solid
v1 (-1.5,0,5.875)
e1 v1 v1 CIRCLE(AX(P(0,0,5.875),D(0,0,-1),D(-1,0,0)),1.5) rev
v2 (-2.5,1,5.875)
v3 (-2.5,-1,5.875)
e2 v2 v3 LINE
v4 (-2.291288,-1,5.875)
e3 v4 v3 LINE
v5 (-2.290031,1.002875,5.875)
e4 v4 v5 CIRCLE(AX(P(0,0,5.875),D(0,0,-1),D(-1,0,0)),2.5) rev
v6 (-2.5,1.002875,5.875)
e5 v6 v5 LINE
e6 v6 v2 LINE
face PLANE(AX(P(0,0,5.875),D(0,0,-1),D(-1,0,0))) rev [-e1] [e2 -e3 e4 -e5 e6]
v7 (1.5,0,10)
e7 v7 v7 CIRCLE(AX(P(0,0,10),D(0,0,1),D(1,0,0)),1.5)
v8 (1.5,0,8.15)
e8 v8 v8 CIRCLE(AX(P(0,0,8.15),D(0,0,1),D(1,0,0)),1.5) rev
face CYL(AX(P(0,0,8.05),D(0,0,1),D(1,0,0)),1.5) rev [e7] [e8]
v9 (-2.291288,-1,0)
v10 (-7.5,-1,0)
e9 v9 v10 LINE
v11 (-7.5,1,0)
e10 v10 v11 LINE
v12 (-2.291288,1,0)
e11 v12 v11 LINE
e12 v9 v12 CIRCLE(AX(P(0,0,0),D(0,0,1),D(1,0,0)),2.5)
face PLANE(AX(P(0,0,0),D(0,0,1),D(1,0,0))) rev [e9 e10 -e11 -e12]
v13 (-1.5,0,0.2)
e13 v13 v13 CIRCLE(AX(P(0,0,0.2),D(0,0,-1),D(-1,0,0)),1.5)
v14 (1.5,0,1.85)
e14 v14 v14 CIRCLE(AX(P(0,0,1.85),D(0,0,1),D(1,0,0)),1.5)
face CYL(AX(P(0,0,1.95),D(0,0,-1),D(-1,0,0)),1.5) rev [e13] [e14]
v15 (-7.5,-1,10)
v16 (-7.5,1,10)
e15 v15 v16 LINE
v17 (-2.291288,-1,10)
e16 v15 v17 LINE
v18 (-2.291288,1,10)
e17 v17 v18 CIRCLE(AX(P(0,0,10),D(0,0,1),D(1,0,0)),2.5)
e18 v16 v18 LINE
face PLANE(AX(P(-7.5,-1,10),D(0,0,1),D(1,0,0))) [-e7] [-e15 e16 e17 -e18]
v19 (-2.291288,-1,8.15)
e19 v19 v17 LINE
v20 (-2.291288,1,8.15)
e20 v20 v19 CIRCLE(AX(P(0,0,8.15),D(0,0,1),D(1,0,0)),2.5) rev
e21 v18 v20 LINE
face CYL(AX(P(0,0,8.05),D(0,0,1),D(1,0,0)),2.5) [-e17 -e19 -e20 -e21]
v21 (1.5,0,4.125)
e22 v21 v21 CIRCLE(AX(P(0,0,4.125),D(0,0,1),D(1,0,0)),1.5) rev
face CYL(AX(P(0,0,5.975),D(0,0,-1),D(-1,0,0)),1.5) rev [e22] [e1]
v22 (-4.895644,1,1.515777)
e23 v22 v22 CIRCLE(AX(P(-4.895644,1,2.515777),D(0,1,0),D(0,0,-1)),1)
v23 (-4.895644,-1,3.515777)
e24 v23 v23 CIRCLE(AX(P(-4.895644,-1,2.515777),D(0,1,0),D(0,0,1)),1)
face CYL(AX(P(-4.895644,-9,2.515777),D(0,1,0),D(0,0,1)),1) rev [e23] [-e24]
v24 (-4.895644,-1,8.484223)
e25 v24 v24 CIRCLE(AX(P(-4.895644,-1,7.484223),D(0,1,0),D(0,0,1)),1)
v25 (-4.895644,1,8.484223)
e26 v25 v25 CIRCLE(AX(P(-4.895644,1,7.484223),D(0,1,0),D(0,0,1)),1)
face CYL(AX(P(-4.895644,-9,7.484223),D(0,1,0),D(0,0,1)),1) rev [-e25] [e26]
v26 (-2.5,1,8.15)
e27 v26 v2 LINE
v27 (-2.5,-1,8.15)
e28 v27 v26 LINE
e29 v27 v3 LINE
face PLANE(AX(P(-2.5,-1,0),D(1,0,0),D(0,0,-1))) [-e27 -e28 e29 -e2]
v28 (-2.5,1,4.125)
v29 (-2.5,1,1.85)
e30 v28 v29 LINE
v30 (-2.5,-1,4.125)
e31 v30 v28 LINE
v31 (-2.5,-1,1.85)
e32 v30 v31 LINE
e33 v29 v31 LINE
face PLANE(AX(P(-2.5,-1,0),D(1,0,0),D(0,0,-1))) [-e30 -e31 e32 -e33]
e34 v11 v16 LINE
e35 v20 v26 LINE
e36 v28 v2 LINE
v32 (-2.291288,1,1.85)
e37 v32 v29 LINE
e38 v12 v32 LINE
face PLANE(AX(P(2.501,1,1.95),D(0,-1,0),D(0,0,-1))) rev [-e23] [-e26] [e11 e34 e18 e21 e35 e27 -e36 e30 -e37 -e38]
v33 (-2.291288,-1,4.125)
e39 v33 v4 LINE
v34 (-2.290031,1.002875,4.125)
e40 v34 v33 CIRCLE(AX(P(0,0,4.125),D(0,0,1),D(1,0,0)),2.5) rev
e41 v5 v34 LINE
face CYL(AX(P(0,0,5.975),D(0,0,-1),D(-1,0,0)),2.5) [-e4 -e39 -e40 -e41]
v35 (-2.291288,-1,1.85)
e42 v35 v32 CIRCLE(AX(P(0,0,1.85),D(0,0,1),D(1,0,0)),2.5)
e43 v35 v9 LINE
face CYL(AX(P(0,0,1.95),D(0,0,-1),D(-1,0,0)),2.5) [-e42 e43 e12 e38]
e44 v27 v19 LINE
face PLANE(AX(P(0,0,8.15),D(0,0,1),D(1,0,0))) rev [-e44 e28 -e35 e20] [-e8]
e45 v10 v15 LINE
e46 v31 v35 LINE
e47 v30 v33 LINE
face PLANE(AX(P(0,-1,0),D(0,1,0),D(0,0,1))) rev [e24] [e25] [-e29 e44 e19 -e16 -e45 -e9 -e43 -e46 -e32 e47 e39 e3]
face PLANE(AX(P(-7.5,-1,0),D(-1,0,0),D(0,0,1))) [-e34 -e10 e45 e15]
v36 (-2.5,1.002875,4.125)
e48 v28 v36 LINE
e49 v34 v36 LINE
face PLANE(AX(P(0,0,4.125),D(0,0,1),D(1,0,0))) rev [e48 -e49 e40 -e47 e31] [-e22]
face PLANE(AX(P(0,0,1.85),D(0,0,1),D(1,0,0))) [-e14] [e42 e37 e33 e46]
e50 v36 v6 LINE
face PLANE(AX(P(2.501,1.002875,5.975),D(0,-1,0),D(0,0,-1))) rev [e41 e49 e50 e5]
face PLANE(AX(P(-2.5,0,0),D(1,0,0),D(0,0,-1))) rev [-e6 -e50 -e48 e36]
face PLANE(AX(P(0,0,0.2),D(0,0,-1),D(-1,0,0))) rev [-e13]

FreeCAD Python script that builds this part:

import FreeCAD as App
import Part
import Sketcher
Q = App.Units.Quantity

doc = App.newDocument("Part")
body = doc.addObject("PartDesign::Body", "Body")

sketch1 = body.newObject("Sketcher::SketchObject", "Sketch")
sketch1.AttachmentSupport = (doc.getObject("XY_Plane"), [""])
sketch1.MapMode = "FlatFace"
sketch1.addGeometry(Part.Circle(App.Vector(0, 0, 0), App.Vector(0, 0, 1), 2.5), False)
sketch1.addGeometry(Part.Circle(App.Vector(0, 0, 0), App.Vector(0, 0, 1), 1.5), False)
sketch1.addConstraint(Sketcher.Constraint("Coincident", 0, 3, -1, 1))
sketch1.addConstraint(Sketcher.Constraint("Coincident", 1, 3, -1, 1))
sketch1.addConstraint(Sketcher.Constraint("Diameter", 0, Q("5 mm")))
sketch1.addConstraint(Sketcher.Constraint("Diameter", 1, Q("3 mm")))
pad1 = body.newObject("PartDesign::Pad", "Pad")
pad1.Profile = sketch1
pad1.Length = 1.95
body2 = doc.addObject("PartDesign::Body", "Body001")

sketch2 = body2.newObject("Sketcher::SketchObject", "Sketch001")
sketch2.AttachmentSupport = (doc.getObject("XZ_Plane001"), [""])
sketch2.MapMode = "FlatFace"
sketch2.addGeometry(Part.LineSegment(App.Vector(-8, 0, 0), App.Vector(-8, 10, 0)), False)
sketch2.addGeometry(Part.LineSegment(App.Vector(-8, 10, 0), App.Vector(-2, 10, 0)), False)
sketch2.addGeometry(Part.LineSegment(App.Vector(-2, 10, 0), App.Vector(-2, 0, 0)), False)
sketch2.addGeometry(Part.LineSegment(App.Vector(-2, 0, 0), App.Vector(-8, 0, 0)), False)
sketch2.addConstraint(Sketcher.Constraint("Coincident", 0, 2, 1, 1))
sketch2.addConstraint(Sketcher.Constraint("Coincident", 1, 2, 2, 1))
sketch2.addConstraint(Sketcher.Constraint("Coincident", 2, 2, 3, 1))
sketch2.addConstraint(Sketcher.Constraint("Coincident", 3, 2, 0, 1))
sketch2.addConstraint(Sketcher.Constraint("Vertical", 0))
sketch2.addConstraint(Sketcher.Constraint("Horizontal", 1))
sketch2.addConstraint(Sketcher.Constraint("Vertical", 2))
sketch2.addConstraint(Sketcher.Constraint("Horizontal", 3))
sketch2.addConstraint(Sketcher.Constraint("PointOnObject", 2, 2, -1))
sketch2.addConstraint(Sketcher.Constraint("DistanceX", 1, 1, 1, 2, Q("5 mm")))
sketch2.addConstraint(Sketcher.Constraint("DistanceY", 0, 1, 0, 2, Q("10 mm")))
sketch2.addConstraint(Sketcher.Constraint("DistanceX", 0, 2, -1, 1, Q("7.5 mm")))
pad2 = body2.newObject("PartDesign::Pad", "Pad001")
pad2.Profile = sketch2
pad2.Type = "TwoLengths"
pad2.Length = 1
pad2.Length2 = 1
pad2.Reversed = True
body.AllowCompound = True
doc.recompute()

boolean = body.newObject("PartDesign::Boolean", "Boolean")
boolean.Type = "Fuse"
boolean.addObjects([body2])

sketch3 = body.newObject("Sketcher::SketchObject", "Sketch002")
sketch3.AttachmentSupport = (doc.getObject("YZ_Plane"), [""])
sketch3.MapMode = "FlatFace"
sketch3.AttachmentOffset = App.Placement(App.Vector(0, 0, -2.5), App.Rotation())
sketch3.addGeometry(Part.LineSegment(App.Vector(1, 1.9, 0), App.Vector(-1, 1.9, 0)), False)
sketch3.addGeometry(Part.LineSegment(App.Vector(-1, 1.9, 0), App.Vector(-1, 0, 0)), False)
sketch3.addGeometry(Part.LineSegment(App.Vector(-1, 0, 0), App.Vector(1, 0, 0)), False)
sketch3.addGeometry(Part.LineSegment(App.Vector(1, 0, 0), App.Vector(1, 1.9, 0)), False)
sketch3.addConstraint(Sketcher.Constraint("Coincident", 0, 2, 1, 1))
sketch3.addConstraint(Sketcher.Constraint("Coincident", 1, 2, 2, 1))
sketch3.addConstraint(Sketcher.Constraint("Coincident", 2, 2, 3, 1))
sketch3.addConstraint(Sketcher.Constraint("Coincident", 3, 2, 0, 1))
sketch3.addConstraint(Sketcher.Constraint("Horizontal", 0))
sketch3.addConstraint(Sketcher.Constraint("Vertical", 1))
sketch3.addConstraint(Sketcher.Constraint("Horizontal", 2))
sketch3.addConstraint(Sketcher.Constraint("Vertical", 3))
sketch3.addConstraint(Sketcher.Constraint("Symmetric", 1, 2, 2, 2, -1, 1))
sketch3.addConstraint(Sketcher.Constraint("DistanceX", 0, 2, 0, 1, Q("2 mm")))
sketch3.addConstraint(Sketcher.Constraint("DistanceY", 1, 2, 1, 1, Q("1.95 mm")))
pad3 = body.newObject("PartDesign::Pad", "Pad002")
pad3.Profile = sketch3
pad3.Length = 0.208712
body3 = doc.addObject("PartDesign::Body", "Body002")

sketch4 = body3.newObject("Sketcher::SketchObject", "Sketch003")
sketch4.AttachmentSupport = (doc.getObject("XY_Plane002"), [""])
sketch4.MapMode = "FlatFace"
sketch4.AttachmentOffset = App.Placement(App.Vector(0, 0, 10), App.Rotation())
sketch4.addGeometry(Part.Circle(App.Vector(0, 0, 0), App.Vector(0, 0, 1), 2.5), False)
sketch4.addGeometry(Part.Circle(App.Vector(0, 0, 0), App.Vector(0, 0, 1), 1.5), False)
sketch4.addConstraint(Sketcher.Constraint("Coincident", 0, 3, -1, 1))
sketch4.addConstraint(Sketcher.Constraint("Coincident", 1, 3, -1, 1))
sketch4.addConstraint(Sketcher.Constraint("Diameter", 0, Q("5 mm")))
sketch4.addConstraint(Sketcher.Constraint("Diameter", 1, Q("3 mm")))
pad4 = body3.newObject("PartDesign::Pad", "Pad003")
pad4.Profile = sketch4
pad4.Length = 1.95
pad4.Reversed = True
body4 = doc.addObject("PartDesign::Body", "Body003")

sketch5 = body4.newObject("Sketcher::SketchObject", "Sketch004")
sketch5.AttachmentSupport = (doc.getObject("XY_Plane003"), [""])
sketch5.MapMode = "FlatFace"
sketch5.AttachmentOffset = App.Placement(App.Vector(0, 0, 5), App.Rotation())
sketch5.addGeometry(Part.Circle(App.Vector(0, 0, 0), App.Vector(0, 0, 1), 2.5), False)
sketch5.addGeometry(Part.Circle(App.Vector(0, 0, 0), App.Vector(0, 0, 1), 1.5), False)
sketch5.addConstraint(Sketcher.Constraint("Coincident", 0, 3, -1, 1))
sketch5.addConstraint(Sketcher.Constraint("Coincident", 1, 3, -1, 1))
sketch5.addConstraint(Sketcher.Constraint("Diameter", 0, Q("5 mm")))
sketch5.addConstraint(Sketcher.Constraint("Diameter", 1, Q("3 mm")))
pad5 = body4.newObject("PartDesign::Pad", "Pad004")
pad5.Profile = sketch5
pad5.Type = "TwoLengths"
pad5.Length = 0.975
pad5.Length2 = 0.975
pad5.Reversed = True
body.AllowCompound = True
doc.recompute()

boolean2 = body.newObject("PartDesign::Boolean", "Boolean001")
boolean2.Type = "Fuse"
boolean2.addObjects([body3])
doc.recompute()

boolean3 = body.newObject("PartDesign::Boolean", "Boolean002")
boolean3.Type = "Fuse"
boolean3.addObjects([body4])

sketch6 = body.newObject("Sketcher::SketchObject", "Sketch005")
sketch6.AttachmentSupport = (doc.getObject("YZ_Plane"), [""])
sketch6.MapMode = "FlatFace"
sketch6.AttachmentOffset = App.Placement(App.Vector(0, 0, -2.5), App.Rotation())
sketch6.addGeometry(Part.LineSegment(App.Vector(1, 6, 0), App.Vector(-1, 6, 0)), False)
sketch6.addGeometry(Part.LineSegment(App.Vector(-1, 6, 0), App.Vector(-1, 4, 0)), False)
sketch6.addGeometry(Part.LineSegment(App.Vector(-1, 4, 0), App.Vector(1, 4, 0)), False)
sketch6.addGeometry(Part.LineSegment(App.Vector(1, 4, 0), App.Vector(1, 6, 0)), False)
sketch6.addGeometry(Part.LineSegment(App.Vector(1, 10, 0), App.Vector(-1, 10, 0)), False)
sketch6.addGeometry(Part.LineSegment(App.Vector(-1, 10, 0), App.Vector(-1, 8.1, 0)), False)
sketch6.addGeometry(Part.LineSegment(App.Vector(-1, 8.1, 0), App.Vector(1, 8.1, 0)), False)
sketch6.addGeometry(Part.LineSegment(App.Vector(1, 8.1, 0), App.Vector(1, 10, 0)), False)
sketch6.addConstraint(Sketcher.Constraint("Coincident", 0, 2, 1, 1))
sketch6.addConstraint(Sketcher.Constraint("Coincident", 1, 2, 2, 1))
sketch6.addConstraint(Sketcher.Constraint("Coincident", 2, 2, 3, 1))
sketch6.addConstraint(Sketcher.Constraint("Coincident", 3, 2, 0, 1))
sketch6.addConstraint(Sketcher.Constraint("Coincident", 4, 2, 5, 1))
sketch6.addConstraint(Sketcher.Constraint("Coincident", 5, 2, 6, 1))
sketch6.addConstraint(Sketcher.Constraint("Coincident", 6, 2, 7, 1))
sketch6.addConstraint(Sketcher.Constraint("Coincident", 7, 2, 4, 1))
sketch6.addConstraint(Sketcher.Constraint("Horizontal", 0))
sketch6.addConstraint(Sketcher.Constraint("Vertical", 1))
sketch6.addConstraint(Sketcher.Constraint("Horizontal", 2))
sketch6.addConstraint(Sketcher.Constraint("Vertical", 3))
sketch6.addConstraint(Sketcher.Constraint("Horizontal", 4))
sketch6.addConstraint(Sketcher.Constraint("Vertical", 5))
sketch6.addConstraint(Sketcher.Constraint("Horizontal", 6))
sketch6.addConstraint(Sketcher.Constraint("Vertical", 7))
sketch6.addConstraint(Sketcher.Constraint("Vertical", 1, 2, 4, 2))
sketch6.addConstraint(Sketcher.Constraint("Equal", 3, 5))
sketch6.addConstraint(Sketcher.Constraint("DistanceX", 4, 2, 4, 1, Q("2 mm")))
sketch6.addConstraint(Sketcher.Constraint("DistanceX", 0, 2, -1, 1, Q("1 mm")))
sketch6.addConstraint(Sketcher.Constraint("DistanceY", -1, 1, 4, 2, Q("10 mm")))
sketch6.addConstraint(Sketcher.Constraint("DistanceY", 1, 2, 1, 1, Q("1.95 mm")))
sketch6.addConstraint(Sketcher.Constraint("DistanceY", -1, 1, 0, 2, Q("5.975 mm")))
sketch6.addConstraint(Sketcher.Constraint("DistanceX", 0, 2, 0, 1, Q("2.002875 mm")))
pad6 = body.newObject("PartDesign::Pad", "Pad005")
pad6.Profile = sketch6
pad6.Length = 0.209969

sketch7 = body.newObject("Sketcher::SketchObject", "Sketch006")
sketch7.AttachmentSupport = (doc.getObject("XY_Plane"), [""])
sketch7.MapMode = "FlatFace"
sketch7.addGeometry(Part.Circle(App.Vector(0, 0, 0), App.Vector(0, 0, 1), 1.5), False)
sketch7.addConstraint(Sketcher.Constraint("Coincident", 0, 3, -1, 1))
sketch7.addConstraint(Sketcher.Constraint("Diameter", 0, Q("3 mm")))
pad7 = body.newObject("PartDesign::Pad", "Pad006")
pad7.Profile = sketch7
pad7.Length = 0.2

sketch8 = body.newObject("Sketcher::SketchObject", "Sketch007")
sketch8.AttachmentSupport = (doc.getObject("XZ_Plane"), [""])
sketch8.MapMode = "FlatFace"
sketch8.AttachmentOffset = App.Placement(App.Vector(0, 0, -1), App.Rotation())
sketch8.addGeometry(Part.Circle(App.Vector(-4.9, 7.5, 0), App.Vector(0, 0, 1), 1), False)
sketch8.addGeometry(Part.Circle(App.Vector(-4.9, 2.5, 0), App.Vector(0, 0, 1), 1), False)
sketch8.addConstraint(Sketcher.Constraint("Equal", 0, 1))
sketch8.addConstraint(Sketcher.Constraint("Vertical", 0, 3, 1, 3))
sketch8.addConstraint(Sketcher.Constraint("Diameter", 0, Q("2 mm")))
sketch8.addConstraint(Sketcher.Constraint("DistanceX", 0, 3, -1, 1, Q("4.895644 mm")))
sketch8.addConstraint(Sketcher.Constraint("DistanceY", -1, 1, 0, 3, Q("7.484223 mm")))
sketch8.addConstraint(Sketcher.Constraint("DistanceY", -1, 1, 1, 3, Q("2.515777 mm")))
pocket1 = body.newObject("PartDesign::Pocket", "Pocket")
pocket1.Profile = sketch8
pocket1.Length = 10
pocket1.Reversed = True

sketch9 = body.newObject("Sketcher::SketchObject", "Sketch008")
sketch9.AttachmentSupport = (doc.getObject("XY_Plane"), [""])
sketch9.MapMode = "FlatFace"
sketch9.AttachmentOffset = App.Placement(App.Vector(0, 0, 8.05), App.Rotation())
sketch9.addGeometry(Part.LineSegment(App.Vector(2, 3, 0), App.Vector(2, -3, 0)), False)
sketch9.addGeometry(Part.LineSegment(App.Vector(2, -3, 0), App.Vector(-2, -3, 0)), False)
sketch9.addGeometry(Part.LineSegment(App.Vector(-2, -3, 0), App.Vector(-2, 3, 0)), False)
sketch9.addGeometry(Part.LineSegment(App.Vector(-2, 3, 0), App.Vector(2, 3, 0)), False)
sketch9.addConstraint(Sketcher.Constraint("Coincident", 0, 2, 1, 1))
sketch9.addConstraint(Sketcher.Constraint("Coincident", 1, 2, 2, 1))
sketch9.addConstraint(Sketcher.Constraint("Coincident", 2, 2, 3, 1))
sketch9.addConstraint(Sketcher.Constraint("Coincident", 3, 2, 0, 1))
sketch9.addConstraint(Sketcher.Constraint("Vertical", 0))
sketch9.addConstraint(Sketcher.Constraint("Horizontal", 1))
sketch9.addConstraint(Sketcher.Constraint("Vertical", 2))
sketch9.addConstraint(Sketcher.Constraint("Horizontal", 3))
sketch9.addConstraint(Sketcher.Constraint("Symmetric", 0, 2, 2, 2, -1, 1))
sketch9.addConstraint(Sketcher.Constraint("DistanceX", 1, 2, 1, 1, Q("5 mm")))
sketch9.addConstraint(Sketcher.Constraint("DistanceY", 0, 2, 0, 1, Q("5.480011 mm")))
pocket2 = body.newObject("PartDesign::Pocket", "Pocket001")
pocket2.Profile = sketch9
pocket2.Length = 0.1
pocket2.Reversed = True

sketch10 = body.newObject("Sketcher::SketchObject", "Sketch009")
sketch10.AttachmentSupport = (doc.getObject("XY_Plane"), [""])
sketch10.MapMode = "FlatFace"
sketch10.AttachmentOffset = App.Placement(App.Vector(0, 0, 5.975), App.Rotation())
sketch10.addGeometry(Part.LineSegment(App.Vector(-2, 3, 0), App.Vector(-2, -3, 0)), False)
sketch10.addGeometry(Part.LineSegment(App.Vector(-2, -3, 0), App.Vector(2, -3, 0)), False)
sketch10.addGeometry(Part.LineSegment(App.Vector(2, -3, 0), App.Vector(2, 3, 0)), False)
sketch10.addGeometry(Part.LineSegment(App.Vector(2, 3, 0), App.Vector(-2, 3, 0)), False)
sketch10.addConstraint(Sketcher.Constraint("Coincident", 0, 2, 1, 1))
sketch10.addConstraint(Sketcher.Constraint("Coincident", 1, 2, 2, 1))
sketch10.addConstraint(Sketcher.Constraint("Coincident", 2, 2, 3, 1))
sketch10.addConstraint(Sketcher.Constraint("Coincident", 3, 2, 0, 1))
sketch10.addConstraint(Sketcher.Constraint("Vertical", 0))
sketch10.addConstraint(Sketcher.Constraint("Horizontal", 1))
sketch10.addConstraint(Sketcher.Constraint("Vertical", 2))
sketch10.addConstraint(Sketcher.Constraint("Horizontal", 3))
sketch10.addConstraint(Sketcher.Constraint("Symmetric", 0, 2, 2, 2, -1, 1))
sketch10.addConstraint(Sketcher.Constraint("DistanceX", 1, 1, 1, 2, Q("5 mm")))
sketch10.addConstraint(Sketcher.Constraint("DistanceY", 0, 2, 0, 1, Q("5.21092 mm")))
pocket3 = body.newObject("PartDesign::Pocket", "Pocket002")
pocket3.Profile = sketch10
pocket3.Length = 0.1

sketch11 = body.newObject("Sketcher::SketchObject", "Sketch010")
sketch11.AttachmentSupport = (doc.getObject("XY_Plane"), [""])
sketch11.MapMode = "FlatFace"
sketch11.AttachmentOffset = App.Placement(App.Vector(0, 0, 4.025), App.Rotation())
sketch11.addGeometry(Part.LineSegment(App.Vector(2, 2, 0), App.Vector(2, -2, 0)), False)
sketch11.addGeometry(Part.LineSegment(App.Vector(2, -2, 0), App.Vector(-2, -2, 0)), False)
sketch11.addGeometry(Part.LineSegment(App.Vector(-2, -2, 0), App.Vector(-2, 2, 0)), False)
sketch11.addGeometry(Part.LineSegment(App.Vector(-2, 2, 0), App.Vector(2, 2, 0)), False)
sketch11.addConstraint(Sketcher.Constraint("Coincident", 0, 2, 1, 1))
sketch11.addConstraint(Sketcher.Constraint("Coincident", 1, 2, 2, 1))
sketch11.addConstraint(Sketcher.Constraint("Coincident", 2, 2, 3, 1))
sketch11.addConstraint(Sketcher.Constraint("Coincident", 3, 2, 0, 1))
sketch11.addConstraint(Sketcher.Constraint("Vertical", 0))
sketch11.addConstraint(Sketcher.Constraint("Horizontal", 1))
sketch11.addConstraint(Sketcher.Constraint("Vertical", 2))
sketch11.addConstraint(Sketcher.Constraint("Horizontal", 3))
sketch11.addConstraint(Sketcher.Constraint("Symmetric", 0, 2, 2, 2, -1, 1))
sketch11.addConstraint(Sketcher.Constraint("Equal", 3, 0))
sketch11.addConstraint(Sketcher.Constraint("DistanceX", 1, 2, 1, 1, Q("5 mm")))
pocket4 = body.newObject("PartDesign::Pocket", "Pocket003")
pocket4.Profile = sketch11
pocket4.Length = 0.1
pocket4.Reversed = True

sketch12 = body.newObject("Sketcher::SketchObject", "Sketch011")
sketch12.AttachmentSupport = (doc.getObject("XY_Plane"), [""])
sketch12.MapMode = "FlatFace"
sketch12.AttachmentOffset = App.Placement(App.Vector(0, 0, 1.95), App.Rotation())
sketch12.addGeometry(Part.LineSegment(App.Vector(-2, 3, 0), App.Vector(-2, -3, 0)), False)
sketch12.addGeometry(Part.LineSegment(App.Vector(-2, -3, 0), App.Vector(2, -3, 0)), False)
sketch12.addGeometry(Part.LineSegment(App.Vector(2, -3, 0), App.Vector(2, 3, 0)), False)
sketch12.addGeometry(Part.LineSegment(App.Vector(2, 3, 0), App.Vector(-2, 3, 0)), False)
sketch12.addConstraint(Sketcher.Constraint("Coincident", 0, 2, 1, 1))
sketch12.addConstraint(Sketcher.Constraint("Coincident", 1, 2, 2, 1))
sketch12.addConstraint(Sketcher.Constraint("Coincident", 2, 2, 3, 1))
sketch12.addConstraint(Sketcher.Constraint("Coincident", 3, 2, 0, 1))
sketch12.addConstraint(Sketcher.Constraint("Vertical", 0))
sketch12.addConstraint(Sketcher.Constraint("Horizontal", 1))
sketch12.addConstraint(Sketcher.Constraint("Vertical", 2))
sketch12.addConstraint(Sketcher.Constraint("Horizontal", 3))
sketch12.addConstraint(Sketcher.Constraint("Symmetric", 0, 2, 2, 2, -1, 1))
sketch12.addConstraint(Sketcher.Constraint("DistanceX", 1, 1, 1, 2, Q("5 mm")))
sketch12.addConstraint(Sketcher.Constraint("DistanceY", 0, 2, 0, 1, Q("5.525174 mm")))
pocket5 = body.newObject("PartDesign::Pocket", "Pocket004")
pocket5.Profile = sketch12
pocket5.Length = 0.1

doc.recompute()
